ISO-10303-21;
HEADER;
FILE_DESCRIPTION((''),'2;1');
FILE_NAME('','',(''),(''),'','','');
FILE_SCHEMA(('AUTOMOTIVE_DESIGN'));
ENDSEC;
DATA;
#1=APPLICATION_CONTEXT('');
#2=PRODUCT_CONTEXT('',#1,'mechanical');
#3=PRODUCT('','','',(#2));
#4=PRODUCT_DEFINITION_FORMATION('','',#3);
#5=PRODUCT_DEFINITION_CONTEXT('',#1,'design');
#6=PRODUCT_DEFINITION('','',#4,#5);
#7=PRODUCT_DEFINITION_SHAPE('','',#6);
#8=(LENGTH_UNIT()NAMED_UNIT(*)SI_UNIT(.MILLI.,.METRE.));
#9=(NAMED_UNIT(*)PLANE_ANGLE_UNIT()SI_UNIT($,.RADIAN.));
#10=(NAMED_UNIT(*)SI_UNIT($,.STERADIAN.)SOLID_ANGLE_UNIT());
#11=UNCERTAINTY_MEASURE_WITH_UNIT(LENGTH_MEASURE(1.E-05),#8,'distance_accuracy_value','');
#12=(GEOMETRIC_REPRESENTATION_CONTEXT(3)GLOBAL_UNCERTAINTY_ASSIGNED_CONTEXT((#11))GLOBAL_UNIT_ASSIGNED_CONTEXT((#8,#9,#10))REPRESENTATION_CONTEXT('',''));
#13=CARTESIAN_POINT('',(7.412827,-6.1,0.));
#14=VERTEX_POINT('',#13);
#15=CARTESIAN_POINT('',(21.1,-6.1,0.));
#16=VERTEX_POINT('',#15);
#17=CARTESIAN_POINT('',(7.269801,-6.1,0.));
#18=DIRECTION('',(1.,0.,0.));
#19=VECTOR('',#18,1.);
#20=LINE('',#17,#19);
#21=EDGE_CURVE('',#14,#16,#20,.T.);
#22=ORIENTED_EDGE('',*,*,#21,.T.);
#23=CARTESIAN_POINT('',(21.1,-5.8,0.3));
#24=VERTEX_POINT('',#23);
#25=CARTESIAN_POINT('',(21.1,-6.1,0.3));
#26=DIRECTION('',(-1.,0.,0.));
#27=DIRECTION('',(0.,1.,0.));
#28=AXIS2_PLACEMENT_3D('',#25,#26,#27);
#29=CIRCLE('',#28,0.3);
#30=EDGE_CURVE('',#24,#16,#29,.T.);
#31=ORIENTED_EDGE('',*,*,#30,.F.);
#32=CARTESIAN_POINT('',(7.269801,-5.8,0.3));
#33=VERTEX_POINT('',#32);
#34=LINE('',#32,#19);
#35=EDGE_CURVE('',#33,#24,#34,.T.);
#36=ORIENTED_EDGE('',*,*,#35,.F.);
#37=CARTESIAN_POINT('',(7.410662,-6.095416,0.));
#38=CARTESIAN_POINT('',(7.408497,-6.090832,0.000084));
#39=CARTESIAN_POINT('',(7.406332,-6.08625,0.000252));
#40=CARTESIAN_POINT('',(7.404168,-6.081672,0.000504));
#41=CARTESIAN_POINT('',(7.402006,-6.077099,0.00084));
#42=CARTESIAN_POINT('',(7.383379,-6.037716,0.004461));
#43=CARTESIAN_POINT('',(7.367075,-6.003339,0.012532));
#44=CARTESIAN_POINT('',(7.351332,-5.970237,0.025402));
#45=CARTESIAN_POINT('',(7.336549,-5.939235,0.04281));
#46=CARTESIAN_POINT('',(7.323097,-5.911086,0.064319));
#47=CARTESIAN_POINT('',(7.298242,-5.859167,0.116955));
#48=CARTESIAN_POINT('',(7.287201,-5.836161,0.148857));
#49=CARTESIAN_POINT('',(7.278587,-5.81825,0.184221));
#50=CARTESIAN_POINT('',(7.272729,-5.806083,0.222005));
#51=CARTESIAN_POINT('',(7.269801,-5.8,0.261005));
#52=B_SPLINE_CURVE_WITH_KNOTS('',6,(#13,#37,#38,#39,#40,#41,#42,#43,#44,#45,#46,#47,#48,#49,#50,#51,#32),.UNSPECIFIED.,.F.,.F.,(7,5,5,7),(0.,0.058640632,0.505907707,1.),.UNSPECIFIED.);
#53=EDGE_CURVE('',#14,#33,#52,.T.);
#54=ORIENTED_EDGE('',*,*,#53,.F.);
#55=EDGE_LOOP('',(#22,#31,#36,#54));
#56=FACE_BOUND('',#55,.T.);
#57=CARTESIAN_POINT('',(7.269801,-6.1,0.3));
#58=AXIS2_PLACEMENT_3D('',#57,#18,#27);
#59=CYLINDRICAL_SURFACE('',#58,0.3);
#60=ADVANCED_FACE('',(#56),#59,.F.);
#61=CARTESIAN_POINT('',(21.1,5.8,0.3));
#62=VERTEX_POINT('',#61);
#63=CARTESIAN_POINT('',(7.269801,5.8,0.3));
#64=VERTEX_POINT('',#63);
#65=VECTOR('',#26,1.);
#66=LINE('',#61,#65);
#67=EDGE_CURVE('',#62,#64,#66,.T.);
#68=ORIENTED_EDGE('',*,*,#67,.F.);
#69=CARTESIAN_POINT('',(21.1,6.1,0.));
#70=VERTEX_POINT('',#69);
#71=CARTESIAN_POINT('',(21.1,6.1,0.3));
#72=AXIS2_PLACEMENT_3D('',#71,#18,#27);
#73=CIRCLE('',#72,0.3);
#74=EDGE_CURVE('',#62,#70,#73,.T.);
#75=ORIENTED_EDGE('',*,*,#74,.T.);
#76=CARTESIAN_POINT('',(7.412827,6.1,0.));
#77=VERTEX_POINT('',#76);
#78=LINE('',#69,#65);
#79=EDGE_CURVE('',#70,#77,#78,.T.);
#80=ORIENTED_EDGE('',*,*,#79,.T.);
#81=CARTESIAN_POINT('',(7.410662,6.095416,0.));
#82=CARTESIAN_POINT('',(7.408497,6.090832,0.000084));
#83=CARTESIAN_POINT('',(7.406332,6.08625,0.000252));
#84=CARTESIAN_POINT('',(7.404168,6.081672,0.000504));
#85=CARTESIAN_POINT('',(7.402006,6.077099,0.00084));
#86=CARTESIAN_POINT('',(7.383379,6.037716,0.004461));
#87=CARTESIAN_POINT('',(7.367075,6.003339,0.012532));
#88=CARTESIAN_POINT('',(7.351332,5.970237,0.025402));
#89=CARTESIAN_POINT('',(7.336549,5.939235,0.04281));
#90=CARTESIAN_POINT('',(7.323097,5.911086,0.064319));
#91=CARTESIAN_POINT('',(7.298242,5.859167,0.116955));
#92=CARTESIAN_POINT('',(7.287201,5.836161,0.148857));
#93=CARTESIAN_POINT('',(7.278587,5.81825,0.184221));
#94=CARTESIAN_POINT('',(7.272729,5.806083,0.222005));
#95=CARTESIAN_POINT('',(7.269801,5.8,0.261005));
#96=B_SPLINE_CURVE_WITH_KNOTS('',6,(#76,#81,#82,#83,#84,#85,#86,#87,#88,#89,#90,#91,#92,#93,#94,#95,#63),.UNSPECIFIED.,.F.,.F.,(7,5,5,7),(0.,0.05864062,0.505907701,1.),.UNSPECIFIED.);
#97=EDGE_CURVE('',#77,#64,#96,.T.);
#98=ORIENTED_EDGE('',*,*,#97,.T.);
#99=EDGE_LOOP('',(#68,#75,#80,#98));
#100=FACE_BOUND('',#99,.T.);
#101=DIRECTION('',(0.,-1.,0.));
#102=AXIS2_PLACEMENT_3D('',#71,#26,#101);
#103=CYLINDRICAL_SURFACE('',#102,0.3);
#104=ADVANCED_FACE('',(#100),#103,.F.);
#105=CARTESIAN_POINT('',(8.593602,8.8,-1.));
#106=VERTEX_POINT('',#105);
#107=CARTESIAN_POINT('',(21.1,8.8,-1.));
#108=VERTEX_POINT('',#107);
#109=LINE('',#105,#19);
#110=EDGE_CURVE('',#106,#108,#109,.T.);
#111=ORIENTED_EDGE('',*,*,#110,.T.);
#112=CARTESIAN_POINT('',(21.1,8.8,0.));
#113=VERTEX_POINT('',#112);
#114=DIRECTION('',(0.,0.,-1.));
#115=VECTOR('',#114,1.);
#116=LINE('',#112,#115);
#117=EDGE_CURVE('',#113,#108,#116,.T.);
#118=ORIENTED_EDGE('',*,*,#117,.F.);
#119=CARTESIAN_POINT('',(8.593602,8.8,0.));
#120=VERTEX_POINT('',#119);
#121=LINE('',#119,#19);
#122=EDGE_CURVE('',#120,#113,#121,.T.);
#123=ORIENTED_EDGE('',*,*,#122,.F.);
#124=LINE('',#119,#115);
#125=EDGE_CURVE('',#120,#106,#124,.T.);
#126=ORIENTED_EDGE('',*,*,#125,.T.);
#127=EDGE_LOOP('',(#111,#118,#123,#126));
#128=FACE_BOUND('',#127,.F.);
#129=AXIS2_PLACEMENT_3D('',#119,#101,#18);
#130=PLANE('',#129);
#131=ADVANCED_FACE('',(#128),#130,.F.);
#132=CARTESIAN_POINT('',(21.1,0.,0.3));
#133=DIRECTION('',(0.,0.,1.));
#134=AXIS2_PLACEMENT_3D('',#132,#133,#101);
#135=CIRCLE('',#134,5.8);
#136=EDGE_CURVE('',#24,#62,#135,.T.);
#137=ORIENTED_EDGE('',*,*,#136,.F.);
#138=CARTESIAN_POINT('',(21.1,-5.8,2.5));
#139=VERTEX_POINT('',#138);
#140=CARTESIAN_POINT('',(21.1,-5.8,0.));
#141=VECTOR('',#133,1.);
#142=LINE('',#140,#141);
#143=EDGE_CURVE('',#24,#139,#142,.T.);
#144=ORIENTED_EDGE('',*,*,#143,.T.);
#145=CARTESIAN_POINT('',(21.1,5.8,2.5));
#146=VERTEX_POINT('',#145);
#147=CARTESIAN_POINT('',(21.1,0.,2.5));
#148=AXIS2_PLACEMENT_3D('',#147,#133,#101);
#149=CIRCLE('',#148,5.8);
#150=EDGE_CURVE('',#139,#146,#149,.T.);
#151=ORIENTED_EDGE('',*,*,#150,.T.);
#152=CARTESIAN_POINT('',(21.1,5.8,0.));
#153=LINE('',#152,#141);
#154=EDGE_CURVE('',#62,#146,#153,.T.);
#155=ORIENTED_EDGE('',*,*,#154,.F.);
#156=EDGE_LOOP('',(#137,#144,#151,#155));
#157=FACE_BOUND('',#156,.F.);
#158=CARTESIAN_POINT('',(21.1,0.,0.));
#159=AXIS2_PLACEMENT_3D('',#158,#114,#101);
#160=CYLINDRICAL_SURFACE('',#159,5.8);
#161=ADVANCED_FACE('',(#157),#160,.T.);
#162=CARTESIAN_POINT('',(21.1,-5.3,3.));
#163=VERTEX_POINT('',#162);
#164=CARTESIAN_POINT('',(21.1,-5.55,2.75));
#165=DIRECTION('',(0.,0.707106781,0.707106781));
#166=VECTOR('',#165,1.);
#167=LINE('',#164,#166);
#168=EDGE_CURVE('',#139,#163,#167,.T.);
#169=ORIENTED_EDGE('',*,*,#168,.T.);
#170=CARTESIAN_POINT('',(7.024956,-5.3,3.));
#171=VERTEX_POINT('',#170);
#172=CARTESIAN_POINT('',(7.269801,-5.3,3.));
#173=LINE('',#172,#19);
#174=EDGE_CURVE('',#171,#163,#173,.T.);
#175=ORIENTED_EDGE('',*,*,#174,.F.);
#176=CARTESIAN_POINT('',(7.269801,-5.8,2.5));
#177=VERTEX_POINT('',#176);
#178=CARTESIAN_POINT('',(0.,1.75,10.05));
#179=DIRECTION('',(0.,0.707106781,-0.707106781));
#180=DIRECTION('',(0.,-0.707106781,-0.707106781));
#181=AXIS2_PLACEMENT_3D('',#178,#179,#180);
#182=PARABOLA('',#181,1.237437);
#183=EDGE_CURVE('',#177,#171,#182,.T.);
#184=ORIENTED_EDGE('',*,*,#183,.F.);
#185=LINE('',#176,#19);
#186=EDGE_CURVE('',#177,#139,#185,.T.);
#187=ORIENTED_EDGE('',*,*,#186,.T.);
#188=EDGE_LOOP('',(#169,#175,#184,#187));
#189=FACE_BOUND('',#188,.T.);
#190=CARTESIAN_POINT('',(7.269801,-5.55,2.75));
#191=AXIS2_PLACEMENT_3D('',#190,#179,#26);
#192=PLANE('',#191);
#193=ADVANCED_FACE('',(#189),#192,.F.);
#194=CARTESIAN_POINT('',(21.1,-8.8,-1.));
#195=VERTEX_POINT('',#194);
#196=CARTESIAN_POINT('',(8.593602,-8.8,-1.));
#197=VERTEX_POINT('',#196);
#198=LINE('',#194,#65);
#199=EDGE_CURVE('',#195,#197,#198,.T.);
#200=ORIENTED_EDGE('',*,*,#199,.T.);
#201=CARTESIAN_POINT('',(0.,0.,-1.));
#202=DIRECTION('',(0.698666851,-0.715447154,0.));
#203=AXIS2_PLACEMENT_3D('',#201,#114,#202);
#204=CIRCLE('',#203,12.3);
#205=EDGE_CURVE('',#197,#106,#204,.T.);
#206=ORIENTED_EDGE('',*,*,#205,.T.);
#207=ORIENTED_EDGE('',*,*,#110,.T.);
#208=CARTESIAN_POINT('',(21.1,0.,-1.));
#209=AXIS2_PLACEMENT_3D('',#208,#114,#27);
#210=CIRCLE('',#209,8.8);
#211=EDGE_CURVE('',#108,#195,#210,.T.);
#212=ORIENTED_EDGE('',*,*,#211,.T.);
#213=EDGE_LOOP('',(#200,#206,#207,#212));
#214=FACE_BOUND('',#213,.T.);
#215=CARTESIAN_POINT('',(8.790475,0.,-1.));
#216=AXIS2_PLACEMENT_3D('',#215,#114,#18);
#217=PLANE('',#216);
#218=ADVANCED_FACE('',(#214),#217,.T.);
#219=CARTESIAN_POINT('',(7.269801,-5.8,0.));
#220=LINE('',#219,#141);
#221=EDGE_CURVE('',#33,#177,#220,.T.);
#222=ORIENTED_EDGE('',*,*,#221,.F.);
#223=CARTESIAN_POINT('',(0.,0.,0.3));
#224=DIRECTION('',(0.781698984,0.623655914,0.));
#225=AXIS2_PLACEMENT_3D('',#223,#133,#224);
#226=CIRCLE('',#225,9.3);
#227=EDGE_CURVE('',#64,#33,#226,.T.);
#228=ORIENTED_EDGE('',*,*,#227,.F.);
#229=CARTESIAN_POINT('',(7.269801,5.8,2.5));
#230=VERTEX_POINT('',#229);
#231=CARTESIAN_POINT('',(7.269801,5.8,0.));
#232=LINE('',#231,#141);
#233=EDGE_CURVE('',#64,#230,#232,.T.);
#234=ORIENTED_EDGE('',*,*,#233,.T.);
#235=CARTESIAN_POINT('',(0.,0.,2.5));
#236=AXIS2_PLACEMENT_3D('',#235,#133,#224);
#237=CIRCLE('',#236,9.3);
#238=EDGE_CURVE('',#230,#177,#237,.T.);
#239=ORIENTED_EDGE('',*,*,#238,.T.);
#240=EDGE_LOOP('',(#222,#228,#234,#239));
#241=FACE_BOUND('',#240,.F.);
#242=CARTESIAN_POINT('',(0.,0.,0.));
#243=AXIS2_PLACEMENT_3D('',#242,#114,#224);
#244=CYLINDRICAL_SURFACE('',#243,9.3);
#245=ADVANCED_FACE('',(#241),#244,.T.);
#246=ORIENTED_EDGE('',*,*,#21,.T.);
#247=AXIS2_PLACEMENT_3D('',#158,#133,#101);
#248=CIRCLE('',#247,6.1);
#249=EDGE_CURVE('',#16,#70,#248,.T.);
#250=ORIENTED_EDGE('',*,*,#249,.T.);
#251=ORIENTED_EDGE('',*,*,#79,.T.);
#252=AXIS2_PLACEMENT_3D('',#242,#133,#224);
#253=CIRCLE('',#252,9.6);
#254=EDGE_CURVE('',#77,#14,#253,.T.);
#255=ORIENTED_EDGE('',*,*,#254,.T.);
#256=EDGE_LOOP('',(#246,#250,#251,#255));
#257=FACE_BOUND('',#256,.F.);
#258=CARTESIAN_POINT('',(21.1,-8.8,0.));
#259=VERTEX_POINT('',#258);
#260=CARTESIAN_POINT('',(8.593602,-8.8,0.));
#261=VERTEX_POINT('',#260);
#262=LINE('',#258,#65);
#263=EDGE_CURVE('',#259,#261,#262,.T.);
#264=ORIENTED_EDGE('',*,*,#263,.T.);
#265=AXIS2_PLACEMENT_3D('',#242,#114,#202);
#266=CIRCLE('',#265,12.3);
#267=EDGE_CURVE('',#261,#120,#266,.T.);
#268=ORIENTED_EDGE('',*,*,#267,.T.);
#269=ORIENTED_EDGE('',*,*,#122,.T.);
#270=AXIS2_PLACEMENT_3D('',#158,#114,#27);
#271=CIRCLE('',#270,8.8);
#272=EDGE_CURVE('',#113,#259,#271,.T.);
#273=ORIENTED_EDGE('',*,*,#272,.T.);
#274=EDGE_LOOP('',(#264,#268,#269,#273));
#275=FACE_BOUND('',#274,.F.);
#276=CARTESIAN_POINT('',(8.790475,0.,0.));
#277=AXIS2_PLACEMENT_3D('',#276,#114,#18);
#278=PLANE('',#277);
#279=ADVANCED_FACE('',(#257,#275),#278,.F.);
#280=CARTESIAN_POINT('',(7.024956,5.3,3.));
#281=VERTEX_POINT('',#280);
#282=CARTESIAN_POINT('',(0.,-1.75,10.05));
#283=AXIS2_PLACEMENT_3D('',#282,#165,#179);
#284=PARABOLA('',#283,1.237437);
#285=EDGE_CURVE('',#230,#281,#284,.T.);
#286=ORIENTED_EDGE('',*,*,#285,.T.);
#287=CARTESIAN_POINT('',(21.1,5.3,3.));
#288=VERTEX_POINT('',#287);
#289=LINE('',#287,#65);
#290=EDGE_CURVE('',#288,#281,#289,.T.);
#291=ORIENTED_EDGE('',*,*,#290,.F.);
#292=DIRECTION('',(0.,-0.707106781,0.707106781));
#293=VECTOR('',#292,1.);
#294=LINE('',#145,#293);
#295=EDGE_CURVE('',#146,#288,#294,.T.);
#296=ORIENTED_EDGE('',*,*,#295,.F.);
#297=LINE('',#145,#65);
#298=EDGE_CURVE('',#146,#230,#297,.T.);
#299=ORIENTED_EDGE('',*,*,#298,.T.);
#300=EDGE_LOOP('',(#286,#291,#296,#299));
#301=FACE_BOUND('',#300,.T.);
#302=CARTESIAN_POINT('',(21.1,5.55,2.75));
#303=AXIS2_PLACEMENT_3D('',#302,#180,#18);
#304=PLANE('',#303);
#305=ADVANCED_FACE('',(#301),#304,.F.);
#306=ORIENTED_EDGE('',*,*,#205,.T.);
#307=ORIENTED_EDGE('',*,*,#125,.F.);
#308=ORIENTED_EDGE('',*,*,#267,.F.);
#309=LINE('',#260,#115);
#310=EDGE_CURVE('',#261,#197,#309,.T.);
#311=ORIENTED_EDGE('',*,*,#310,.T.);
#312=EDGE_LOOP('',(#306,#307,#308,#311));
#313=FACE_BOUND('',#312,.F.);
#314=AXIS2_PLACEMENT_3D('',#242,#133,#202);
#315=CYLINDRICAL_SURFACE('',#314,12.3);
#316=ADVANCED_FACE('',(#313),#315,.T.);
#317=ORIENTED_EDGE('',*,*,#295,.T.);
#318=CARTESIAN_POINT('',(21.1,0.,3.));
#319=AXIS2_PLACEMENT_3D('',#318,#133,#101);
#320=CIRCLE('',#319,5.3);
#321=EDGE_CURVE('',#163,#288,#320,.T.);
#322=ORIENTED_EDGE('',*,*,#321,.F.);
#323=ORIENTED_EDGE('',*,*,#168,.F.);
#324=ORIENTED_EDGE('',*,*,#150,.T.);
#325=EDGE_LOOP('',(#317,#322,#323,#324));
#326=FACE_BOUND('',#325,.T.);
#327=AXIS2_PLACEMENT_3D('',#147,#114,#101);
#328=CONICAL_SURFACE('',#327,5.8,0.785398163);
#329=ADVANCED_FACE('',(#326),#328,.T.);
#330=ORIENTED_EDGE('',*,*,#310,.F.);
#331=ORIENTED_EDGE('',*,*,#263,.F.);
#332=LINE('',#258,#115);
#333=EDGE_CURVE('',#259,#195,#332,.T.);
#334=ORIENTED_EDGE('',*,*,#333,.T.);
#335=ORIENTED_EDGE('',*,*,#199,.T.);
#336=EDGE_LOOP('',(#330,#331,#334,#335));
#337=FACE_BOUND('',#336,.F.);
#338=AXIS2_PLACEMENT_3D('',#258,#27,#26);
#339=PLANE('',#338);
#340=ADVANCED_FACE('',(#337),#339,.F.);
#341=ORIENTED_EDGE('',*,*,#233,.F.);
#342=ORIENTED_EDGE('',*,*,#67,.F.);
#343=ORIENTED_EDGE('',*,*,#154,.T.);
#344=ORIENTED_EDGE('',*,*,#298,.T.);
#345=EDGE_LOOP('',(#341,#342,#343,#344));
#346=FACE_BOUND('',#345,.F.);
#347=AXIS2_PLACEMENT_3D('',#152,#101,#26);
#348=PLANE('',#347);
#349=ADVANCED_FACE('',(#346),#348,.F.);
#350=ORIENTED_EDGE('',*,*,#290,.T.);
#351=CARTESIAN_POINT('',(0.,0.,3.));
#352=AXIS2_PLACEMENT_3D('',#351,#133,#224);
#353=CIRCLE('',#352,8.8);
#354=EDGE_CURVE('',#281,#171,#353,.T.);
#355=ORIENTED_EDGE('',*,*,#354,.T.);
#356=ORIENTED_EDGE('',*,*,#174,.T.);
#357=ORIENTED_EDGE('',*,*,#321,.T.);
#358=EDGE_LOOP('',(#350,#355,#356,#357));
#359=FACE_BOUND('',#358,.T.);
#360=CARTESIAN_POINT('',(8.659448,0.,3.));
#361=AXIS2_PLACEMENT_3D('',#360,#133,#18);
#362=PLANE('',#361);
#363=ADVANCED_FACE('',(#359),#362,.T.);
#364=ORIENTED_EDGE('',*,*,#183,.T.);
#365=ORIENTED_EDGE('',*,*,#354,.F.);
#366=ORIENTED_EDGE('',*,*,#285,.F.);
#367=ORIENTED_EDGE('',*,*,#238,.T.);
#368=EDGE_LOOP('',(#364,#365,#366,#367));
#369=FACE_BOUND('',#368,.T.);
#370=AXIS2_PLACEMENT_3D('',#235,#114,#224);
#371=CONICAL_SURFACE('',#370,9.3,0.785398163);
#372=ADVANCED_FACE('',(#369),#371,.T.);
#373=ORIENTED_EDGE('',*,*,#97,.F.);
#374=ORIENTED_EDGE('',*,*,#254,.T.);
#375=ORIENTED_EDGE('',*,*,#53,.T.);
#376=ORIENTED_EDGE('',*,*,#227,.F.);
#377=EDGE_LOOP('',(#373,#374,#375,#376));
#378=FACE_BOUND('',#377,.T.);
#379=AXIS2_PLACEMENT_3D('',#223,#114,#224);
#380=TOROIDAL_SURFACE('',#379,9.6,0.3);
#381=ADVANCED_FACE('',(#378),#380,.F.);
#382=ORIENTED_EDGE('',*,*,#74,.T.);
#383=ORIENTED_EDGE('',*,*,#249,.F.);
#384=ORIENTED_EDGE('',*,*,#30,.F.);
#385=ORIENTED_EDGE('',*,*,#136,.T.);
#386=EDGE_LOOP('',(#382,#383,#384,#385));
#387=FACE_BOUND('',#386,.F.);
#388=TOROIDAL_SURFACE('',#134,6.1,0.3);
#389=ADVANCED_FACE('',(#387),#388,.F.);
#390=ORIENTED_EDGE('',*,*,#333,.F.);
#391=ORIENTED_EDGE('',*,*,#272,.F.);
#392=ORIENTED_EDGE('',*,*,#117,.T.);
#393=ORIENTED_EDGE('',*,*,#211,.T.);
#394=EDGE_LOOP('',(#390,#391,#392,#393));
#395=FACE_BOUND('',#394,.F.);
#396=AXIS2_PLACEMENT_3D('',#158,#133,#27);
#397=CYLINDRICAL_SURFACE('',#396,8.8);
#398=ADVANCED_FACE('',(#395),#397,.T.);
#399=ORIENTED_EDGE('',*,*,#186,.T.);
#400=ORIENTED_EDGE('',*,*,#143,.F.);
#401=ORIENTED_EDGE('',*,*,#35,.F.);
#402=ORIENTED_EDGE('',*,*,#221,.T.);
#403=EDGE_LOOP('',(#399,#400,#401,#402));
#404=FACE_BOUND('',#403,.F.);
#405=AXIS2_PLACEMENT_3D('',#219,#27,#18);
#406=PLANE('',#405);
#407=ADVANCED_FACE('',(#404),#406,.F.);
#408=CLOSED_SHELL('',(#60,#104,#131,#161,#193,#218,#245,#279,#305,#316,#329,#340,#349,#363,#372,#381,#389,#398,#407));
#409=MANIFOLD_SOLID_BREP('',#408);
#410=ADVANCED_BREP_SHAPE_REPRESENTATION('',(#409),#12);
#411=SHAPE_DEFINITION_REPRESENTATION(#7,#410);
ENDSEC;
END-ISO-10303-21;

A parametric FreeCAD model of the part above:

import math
import FreeCAD as App
import Part
import Sketcher


def edges_at(feature, points):
    """Names of the edges that pass closest to the given points."""
    edges = feature.Shape.Edges
    near = lambda p: min(range(len(edges)), key=lambda i: edges[i].distToShape(Part.Vertex(*p))[0])
    return sorted({f"Edge{near(p) + 1}" for p in points})

doc = App.newDocument("Part")
params = doc.addObject("Spreadsheet::Sheet", "Params")
for row, (alias, value) in enumerate([
    ("sketch1_radius", "9.3 mm"),
    ("sketch1_radius2", "5.8 mm"),
    ("pad1_length", "3 mm"),
    ("sketch2_radius", "8.8 mm"),
    ("sketch2_radius2", "12.3 mm"),
    ("pad2_length", "1 mm"),
    ("chamfer_size", "0.5 mm"),
    ("fillet_radius", "0.3 mm"),
], start=1):
    params.set(f"A{row}", alias)
    params.set(f"B{row}", "=" + value)
    params.setAlias(f"B{row}", alias)

body = doc.addObject("PartDesign::Body", "Body")

# Sketch on XY plane
sketch1 = doc.addObject("Sketcher::SketchObject", "Sketch")
body.addObject(sketch1)
sketch1.AttachmentSupport = (doc.XY_Plane, [""])
sketch1.MapMode = "FlatFace"
sketch1.addGeometry(Part.LineSegment(App.Vector(21.1, 5.8, 0), App.Vector(7.269801, 5.8, 0)), False)
sketch1.addGeometry(Part.ArcOfCircle(Part.Circle(App.Vector(0, 0, 0), App.Vector(0, 0, 1), 9.3), math.radians(38.583603), math.radians(321.416397)), False)
sketch1.addGeometry(Part.LineSegment(App.Vector(7.269801, -5.8, 0), App.Vector(21.1, -5.8, 0)), False)
sketch1.addGeometry(Part.ArcOfCircle(Part.Circle(App.Vector(21.1, 0, 0), App.Vector(0, 0, 1), 5.8), math.radians(-90), math.radians(90)), False)
sketch1.addConstraint(Sketcher.Constraint("Coincident", 0, 2, 1, 1))
sketch1.addConstraint(Sketcher.Constraint("Coincident", 1, 2, 2, 1))
sketch1.addConstraint(Sketcher.Constraint("Tangent", 2, 2, 3, 1))
sketch1.addConstraint(Sketcher.Constraint("Tangent", 3, 2, 0, 1))
sketch1.addConstraint(Sketcher.Constraint("Horizontal", 0))
sketch1.addConstraint(Sketcher.Constraint("Horizontal", 2))
sketch1.addConstraint(Sketcher.Constraint("Coincident", 1, 3, -1, 1))
sketch1.addConstraint(Sketcher.Constraint("PointOnObject", 3, 3, -1))
sketch1.addConstraint(Sketcher.Constraint("Radius", 1, 9.3))
sketch1.addConstraint(Sketcher.Constraint("Radius", 3, 5.8))
sketch1.addConstraint(Sketcher.Constraint("DistanceX", -1, 1, 3, 3, 21.1))
sketch1.setExpression("Constraints[8]", "Params.sketch1_radius")
sketch1.setExpression("Constraints[9]", "Params.sketch1_radius2")
pad1 = doc.addObject("PartDesign::Pad", "Pad")
body.addObject(pad1)
pad1.Profile = sketch1
pad1.setExpression("Length", "Params.pad1_length")

# Sketch on XY plane
sketch2 = doc.addObject("Sketcher::SketchObject", "Sketch001")
body.addObject(sketch2)
sketch2.AttachmentSupport = (doc.XY_Plane, [""])
sketch2.MapMode = "FlatFace"
sketch2.addGeometry(Part.ArcOfCircle(Part.Circle(App.Vector(21.1, 0, 0), App.Vector(0, 0, 1), 8.8), math.radians(-90), math.radians(90)), False)
sketch2.addGeometry(Part.LineSegment(App.Vector(21.1, -8.8, 0), App.Vector(8.593602, -8.8, 0)), False)
sketch2.addGeometry(Part.ArcOfCircle(Part.Circle(App.Vector(0, 0, 0), App.Vector(0, 0, 1), 12.3), math.radians(45.679857), math.radians(314.320143)), False)
sketch2.addGeometry(Part.LineSegment(App.Vector(8.593602, 8.8, 0), App.Vector(21.1, 8.8, 0)), False)
sketch2.addConstraint(Sketcher.Constraint("Tangent", 0, 1, 1, 1))
sketch2.addConstraint(Sketcher.Constraint("Coincident", 1, 2, 2, 2))
sketch2.addConstraint(Sketcher.Constraint("Coincident", 2, 1, 3, 1))
sketch2.addConstraint(Sketcher.Constraint("Tangent", 3, 2, 0, 2))
sketch2.addConstraint(Sketcher.Constraint("Horizontal", 1))
sketch2.addConstraint(Sketcher.Constraint("Horizontal", 3))
sketch2.addConstraint(Sketcher.Constraint("Coincident", 2, 3, -1, 1))
sketch2.addConstraint(Sketcher.Constraint("PointOnObject", 0, 3, -1))
sketch2.addConstraint(Sketcher.Constraint("Radius", 0, 8.8))
sketch2.addConstraint(Sketcher.Constraint("Radius", 2, 12.3))
sketch2.addConstraint(Sketcher.Constraint("DistanceX", -1, 1, 0, 3, 21.1))
sketch2.setExpression("Constraints[8]", "Params.sketch2_radius")
sketch2.setExpression("Constraints[9]", "Params.sketch2_radius2")
pad2 = doc.addObject("PartDesign::Pad", "Pad001")
body.addObject(pad2)
pad2.Profile = sketch2
pad2.setExpression("Length", "Params.pad2_length")
pad2.Reversed = True
doc.recompute()

chamfer = doc.addObject("PartDesign::Chamfer", "Chamfer")
body.addObject(chamfer)
chamfer.Base = (pad2, edges_at(pad2, [
    (14.185, -5.8, 3),
    (26.9, 0, 3),
    (14.185, 5.8, 3),
    (-9.3, 0, 3),
]))
chamfer.setExpression("Size", "Params.chamfer_size")
doc.recompute()

fillet = doc.addObject("PartDesign::Fillet", "Fillet")
body.addObject(fillet)
fillet.Base = (chamfer, edges_at(chamfer, [
    (-9.3, 0, 0),
    (14.185, -5.8, 0),
    (26.9, 0, 0),
    (14.185, 5.8, 0),
]))
fillet.setExpression("Radius", "Params.fillet_radius")

doc.recompute()
